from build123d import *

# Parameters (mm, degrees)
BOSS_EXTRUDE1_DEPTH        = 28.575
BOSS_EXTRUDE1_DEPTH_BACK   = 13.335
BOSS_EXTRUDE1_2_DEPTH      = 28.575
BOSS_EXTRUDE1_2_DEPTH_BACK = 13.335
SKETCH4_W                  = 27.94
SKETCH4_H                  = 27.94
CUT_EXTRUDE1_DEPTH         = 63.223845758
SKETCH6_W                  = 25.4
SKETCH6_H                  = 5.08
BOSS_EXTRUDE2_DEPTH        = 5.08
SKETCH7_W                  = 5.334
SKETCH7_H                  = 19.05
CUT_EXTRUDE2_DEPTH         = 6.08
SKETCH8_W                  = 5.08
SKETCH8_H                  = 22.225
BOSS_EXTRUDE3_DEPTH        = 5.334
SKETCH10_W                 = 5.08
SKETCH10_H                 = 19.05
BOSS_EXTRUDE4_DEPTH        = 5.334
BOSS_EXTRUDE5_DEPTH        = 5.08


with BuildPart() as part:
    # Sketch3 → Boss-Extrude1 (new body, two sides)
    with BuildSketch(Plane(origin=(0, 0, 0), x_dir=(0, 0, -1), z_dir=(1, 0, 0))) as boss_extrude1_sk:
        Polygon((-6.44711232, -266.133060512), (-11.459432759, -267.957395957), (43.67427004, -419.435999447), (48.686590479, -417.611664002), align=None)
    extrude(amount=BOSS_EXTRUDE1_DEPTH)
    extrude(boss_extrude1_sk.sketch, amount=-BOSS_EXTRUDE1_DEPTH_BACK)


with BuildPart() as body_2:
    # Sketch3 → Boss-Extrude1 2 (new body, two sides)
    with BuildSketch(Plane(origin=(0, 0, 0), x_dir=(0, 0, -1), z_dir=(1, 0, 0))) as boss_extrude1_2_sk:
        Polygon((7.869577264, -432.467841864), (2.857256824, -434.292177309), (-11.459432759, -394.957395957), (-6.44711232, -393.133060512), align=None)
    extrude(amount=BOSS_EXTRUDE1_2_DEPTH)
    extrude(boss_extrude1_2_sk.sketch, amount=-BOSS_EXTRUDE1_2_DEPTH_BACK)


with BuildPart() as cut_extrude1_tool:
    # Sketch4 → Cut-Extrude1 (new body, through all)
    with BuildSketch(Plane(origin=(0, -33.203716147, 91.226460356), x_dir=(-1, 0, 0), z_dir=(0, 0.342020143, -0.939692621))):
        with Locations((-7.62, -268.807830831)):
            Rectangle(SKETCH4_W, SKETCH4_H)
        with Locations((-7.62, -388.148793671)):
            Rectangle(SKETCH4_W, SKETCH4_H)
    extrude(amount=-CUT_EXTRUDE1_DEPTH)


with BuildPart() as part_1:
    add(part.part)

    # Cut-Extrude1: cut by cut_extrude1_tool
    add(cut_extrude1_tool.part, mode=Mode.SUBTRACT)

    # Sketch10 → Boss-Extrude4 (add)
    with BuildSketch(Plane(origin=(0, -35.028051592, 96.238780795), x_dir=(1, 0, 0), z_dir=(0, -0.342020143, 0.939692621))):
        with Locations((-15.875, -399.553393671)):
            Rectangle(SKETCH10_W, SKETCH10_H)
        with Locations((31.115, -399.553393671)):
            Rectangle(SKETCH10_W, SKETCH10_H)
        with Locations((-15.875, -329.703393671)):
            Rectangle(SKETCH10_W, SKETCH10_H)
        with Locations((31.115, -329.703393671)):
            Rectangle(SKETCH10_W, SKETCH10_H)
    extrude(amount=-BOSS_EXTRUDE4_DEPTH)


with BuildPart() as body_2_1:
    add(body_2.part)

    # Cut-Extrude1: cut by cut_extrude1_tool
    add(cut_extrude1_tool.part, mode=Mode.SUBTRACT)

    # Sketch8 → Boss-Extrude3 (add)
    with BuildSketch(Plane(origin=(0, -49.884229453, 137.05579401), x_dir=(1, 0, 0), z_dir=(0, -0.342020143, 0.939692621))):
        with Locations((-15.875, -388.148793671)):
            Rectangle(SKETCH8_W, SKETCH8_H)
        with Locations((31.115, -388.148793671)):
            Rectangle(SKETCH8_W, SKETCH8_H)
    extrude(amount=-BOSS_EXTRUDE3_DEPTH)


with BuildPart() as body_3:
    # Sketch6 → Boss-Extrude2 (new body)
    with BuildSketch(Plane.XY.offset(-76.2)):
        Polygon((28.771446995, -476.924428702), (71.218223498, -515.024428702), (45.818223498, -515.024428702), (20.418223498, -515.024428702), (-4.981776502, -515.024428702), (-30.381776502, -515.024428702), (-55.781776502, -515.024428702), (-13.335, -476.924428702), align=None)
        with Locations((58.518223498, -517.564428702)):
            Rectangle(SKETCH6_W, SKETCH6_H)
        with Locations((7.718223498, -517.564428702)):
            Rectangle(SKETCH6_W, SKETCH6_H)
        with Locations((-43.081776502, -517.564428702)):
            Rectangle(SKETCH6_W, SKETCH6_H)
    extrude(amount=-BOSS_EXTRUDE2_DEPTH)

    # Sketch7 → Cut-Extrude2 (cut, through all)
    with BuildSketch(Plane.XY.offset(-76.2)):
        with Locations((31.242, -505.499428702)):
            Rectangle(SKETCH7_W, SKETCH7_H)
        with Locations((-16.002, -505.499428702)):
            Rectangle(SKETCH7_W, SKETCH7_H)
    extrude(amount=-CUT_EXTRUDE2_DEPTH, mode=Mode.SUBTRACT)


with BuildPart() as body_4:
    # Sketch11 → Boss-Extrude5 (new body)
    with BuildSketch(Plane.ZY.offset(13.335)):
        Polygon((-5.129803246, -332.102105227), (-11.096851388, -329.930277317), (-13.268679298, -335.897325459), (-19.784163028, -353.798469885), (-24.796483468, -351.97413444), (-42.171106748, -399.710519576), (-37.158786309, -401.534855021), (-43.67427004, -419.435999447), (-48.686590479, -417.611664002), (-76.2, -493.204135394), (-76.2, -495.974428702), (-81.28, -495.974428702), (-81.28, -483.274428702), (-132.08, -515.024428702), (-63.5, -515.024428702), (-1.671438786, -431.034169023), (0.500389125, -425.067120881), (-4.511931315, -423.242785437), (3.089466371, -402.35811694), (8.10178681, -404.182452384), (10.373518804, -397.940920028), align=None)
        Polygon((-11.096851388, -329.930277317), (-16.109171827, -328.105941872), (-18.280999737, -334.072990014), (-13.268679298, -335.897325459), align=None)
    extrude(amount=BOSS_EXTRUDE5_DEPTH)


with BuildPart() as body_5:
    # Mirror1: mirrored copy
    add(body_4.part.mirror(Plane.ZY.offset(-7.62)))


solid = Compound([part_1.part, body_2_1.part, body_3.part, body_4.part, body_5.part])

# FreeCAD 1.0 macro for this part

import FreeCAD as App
import Part
import Sketcher

V = App.Vector
Q = App.Units.Quantity

doc = App.newDocument("Part")
params = doc.addObject("Spreadsheet::Sheet", "Params")
for row, (alias, value) in enumerate([
    ("sketch1_length", "0.21 in"),
    ("pad1_length", "1.125 in"),
    ("pad1_length2", "0.525 in"),
    ("sketch2_length", "0.21 in"),
    ("sketch2_length2", "1.648 in"),
    ("pad2_length", "1.125 in"),
    ("pad2_length2", "0.525 in"),
    ("sketch3_width", "1.1 in"),
    ("pad3_length", "63.223846 mm"),
    ("sketch4_width", "0.2 in"),
    ("sketch4_height", "0.75 in"),
    ("pad4_length", "0.21 in"),
    ("sketch5_width", "0.2 in"),
    ("sketch5_height", "0.875 in"),
    ("pad5_length", "0.21 in"),
    ("sketch6_width", "1 in"),
    ("sketch6_height", "0.2 in"),
    ("pad6_length", "0.2 in"),
    ("sketch7_width", "0.21 in"),
    ("sketch7_height", "0.75 in"),
    ("sketch8_length", "2 in"),
    ("sketch8_width", "0.5 in"),
    ("sketch8_height", "0.2 in"),
    ("sketch8_height2", "2.7 in"),
    ("sketch8_length2", "0.25 in"),
    ("pad7_length", "0.2 in"),
], start=1):
    params.set(f"A{row}", alias)
    params.set(f"B{row}", "=" + value)
    params.setAlias(f"B{row}", alias)

body = doc.addObject("PartDesign::Body", "Body")

# Sketch on YZ plane
sketch1 = body.newObject("Sketcher::SketchObject", "Sketch")
sketch1.AttachmentSupport = (doc.getObject("YZ_Plane"), [""])
sketch1.MapMode = "FlatFace"
sketch1.addGeometry([
    Part.LineSegment(V(-266, 6, 0), V(-268, 11, 0)),
    Part.LineSegment(V(-268, 11, 0), V(-419, -44, 0)),
    Part.LineSegment(V(-419, -44, 0), V(-418, -49, 0)),
    Part.LineSegment(V(-418, -49, 0), V(-266, 6, 0)),
], False)
sketch1.addConstraint([
    Sketcher.Constraint("Coincident", 0, 2, 1, 1),
    Sketcher.Constraint("Coincident", 1, 2, 2, 1),
    Sketcher.Constraint("Coincident", 2, 2, 3, 1),
    Sketcher.Constraint("Coincident", 3, 2, 0, 1),
    Sketcher.Constraint("Perpendicular", 0, 1),
    Sketcher.Constraint("Perpendicular", 1, 2),
    Sketcher.Constraint("Perpendicular", 2, 3),
    Sketcher.Constraint("Angle", 0, Q("110 deg")),
    Sketcher.Constraint("Distance", 0, Q("0.21 in")),
    Sketcher.Constraint("DistanceX", 1, 2, -1, 1, 419.435999),
    Sketcher.Constraint("DistanceY", 1, 2, -1, 1, 43.67427),
    Sketcher.Constraint("DistanceX", 3, 2, -1, 1, 266.133061),
])
sketch1.setExpression("Constraints[8]", "Params.sketch1_length")
pad1 = body.newObject("PartDesign::Pad", "Pad")
pad1.Profile = sketch1
pad1.Type = "TwoLengths"
pad1.setExpression("Length", "Params.pad1_length")
pad1.setExpression("Length2", "Params.pad1_length2")
body2 = doc.addObject("PartDesign::Body", "Body001")

# Sketch on YZ plane
sketch2 = body2.newObject("Sketcher::SketchObject", "Sketch001")
sketch2.AttachmentSupport = (doc.getObject("YZ_Plane001"), [""])
sketch2.MapMode = "FlatFace"
sketch2.addGeometry([
    Part.LineSegment(V(-434, -3, 0), V(-432, -8, 0)),
    Part.LineSegment(V(-432, -8, 0), V(-393, 6, 0)),
    Part.LineSegment(V(-393, 6, 0), V(-395, 11, 0)),
    Part.LineSegment(V(-395, 11, 0), V(-434, -3, 0)),
], False)
sketch2.addConstraint([
    Sketcher.Constraint("Coincident", 0, 2, 1, 1),
    Sketcher.Constraint("Coincident", 1, 2, 2, 1),
    Sketcher.Constraint("Coincident", 2, 2, 3, 1),
    Sketcher.Constraint("Coincident", 3, 2, 0, 1),
    Sketcher.Constraint("Perpendicular", 0, 1),
    Sketcher.Constraint("Perpendicular", 1, 2),
    Sketcher.Constraint("Perpendicular", 2, 3),
    Sketcher.Constraint("Angle", 0, Q("-70 deg")),
    Sketcher.Constraint("Distance", 0, Q("0.21 in")),
    Sketcher.Constraint("Distance", 1, Q("1.648 in")),
    Sketcher.Constraint("DistanceX", 0, 2, -1, 1, 432.467842),
    Sketcher.Constraint("DistanceY", 0, 2, -1, 1, 7.869577),
])
sketch2.setExpression("Constraints[8]", "Params.sketch2_length")
sketch2.setExpression("Constraints[9]", "Params.sketch2_length2")
pad2 = body2.newObject("PartDesign::Pad", "Pad001")
pad2.Profile = sketch2
pad2.Type = "TwoLengths"
pad2.setExpression("Length", "Params.pad2_length")
pad2.setExpression("Length2", "Params.pad2_length2")
body3 = doc.addObject("PartDesign::Body", "Body002")
body3.AllowCompound = True

# Sketch on an angled plane
sketch3 = body3.newObject("Sketcher::SketchObject", "Sketch002")
sketch3.Placement = App.Placement(V(0, -33.203716, 91.22646), App.Rotation(V(-1, 0, 0), V(0, 0.939692621, 0.342020143), V(0, 0.342020143, -0.939692621), "ZXY"))
sketch3.addGeometry([
    Part.LineSegment(V(-22, -255, 0), V(-22, -283, 0)),  # 0
    Part.LineSegment(V(-22, -283, 0), V(6, -283, 0)),  # 1
    Part.LineSegment(V(6, -283, 0), V(6, -255, 0)),  # 2
    Part.LineSegment(V(6, -255, 0), V(-22, -255, 0)),  # 3
    Part.LineSegment(V(-22, -374, 0), V(-22, -402, 0)),  # 4
    Part.LineSegment(V(-22, -402, 0), V(6, -402, 0)),  # 5
    Part.LineSegment(V(6, -402, 0), V(6, -374, 0)),  # 6
    Part.LineSegment(V(6, -374, 0), V(-22, -374, 0)),  # 7
], False)
sketch3.addConstraint([
    Sketcher.Constraint("Coincident", 0, 2, 1, 1),
    Sketcher.Constraint("Coincident", 1, 2, 2, 1),
    Sketcher.Constraint("Coincident", 2, 2, 3, 1),
    Sketcher.Constraint("Coincident", 3, 2, 0, 1),
    Sketcher.Constraint("Coincident", 4, 2, 5, 1),
    Sketcher.Constraint("Coincident", 5, 2, 6, 1),
    Sketcher.Constraint("Coincident", 6, 2, 7, 1),
    Sketcher.Constraint("Coincident", 7, 2, 4, 1),
    Sketcher.Constraint("Vertical", 0),
    Sketcher.Constraint("Horizontal", 1),
    Sketcher.Constraint("Vertical", 2),
    Sketcher.Constraint("Horizontal", 3),
    Sketcher.Constraint("Vertical", 4),
    Sketcher.Constraint("Horizontal", 5),
    Sketcher.Constraint("Vertical", 6),
    Sketcher.Constraint("Horizontal", 7),
    Sketcher.Constraint("Vertical", 3, 2, 4, 2),
    Sketcher.Constraint("Vertical", 2, 2, 5, 2),
    Sketcher.Constraint("Equal", 7, 0),
    Sketcher.Constraint("Equal", 2, 4),
    Sketcher.Constraint("DistanceX", 1, 1, 1, 2, Q("1.1 in")),
    Sketcher.Constraint("DistanceX", 0, 2, -1, 1, Q("0.85 in")),
    Sketcher.Constraint("DistanceY", 0, 2, -1, 1, 282.777831),
    Sketcher.Constraint("DistanceY", 4, 2, -1, 1, 402.118794),
])
sketch3.setExpression("Constraints[20]", "Params.sketch3_width")
pad3 = body3.newObject("PartDesign::Pad", "Pad002")
pad3.Profile = sketch3
pad3.setExpression("Length", "Params.pad3_length")
pad3.Reversed = True
doc.recompute()

body4 = doc.addObject("PartDesign::Body", "Body003")
body4.BaseFeature = body3
boolean = body.newObject("PartDesign::Boolean", "Boolean")
boolean.Type = "Cut"
boolean.addObjects([body4])
doc.recompute()

# Sketch on an angled plane
sketch4 = body.newObject("Sketcher::SketchObject", "Sketch003")
sketch4.Placement = App.Placement(V(0, -35.028052, 96.238781), App.Rotation(V(1, 0, 0), V(0, 0.939692621, 0.342020143), V(0, -0.342020143, 0.939692621), "ZXY"))
sketch4.addGeometry([
    Part.LineSegment(V(-18, -390, 0), V(-18, -409, 0)),  # 0
    Part.LineSegment(V(-18, -409, 0), V(-13, -409, 0)),  # 1
    Part.LineSegment(V(-13, -409, 0), V(-13, -390, 0)),  # 2
    Part.LineSegment(V(-13, -390, 0), V(-18, -390, 0)),  # 3
    Part.LineSegment(V(29, -390, 0), V(29, -409, 0)),  # 4
    Part.LineSegment(V(29, -409, 0), V(34, -409, 0)),  # 5
    Part.LineSegment(V(34, -409, 0), V(34, -390, 0)),  # 6
    Part.LineSegment(V(34, -390, 0), V(29, -390, 0)),  # 7
    Part.LineSegment(V(-18, -320, 0), V(-18, -339, 0)),  # 8
    Part.LineSegment(V(-18, -339, 0), V(-13, -339, 0)),  # 9
    Part.LineSegment(V(-13, -339, 0), V(-13, -320, 0)),  # 10
    Part.LineSegment(V(-13, -320, 0), V(-18, -320, 0)),  # 11
    Part.LineSegment(V(29, -320, 0), V(29, -339, 0)),  # 12
    Part.LineSegment(V(29, -339, 0), V(34, -339, 0)),  # 13
    Part.LineSegment(V(34, -339, 0), V(34, -320, 0)),  # 14
    Part.LineSegment(V(34, -320, 0), V(29, -320, 0)),  # 15
], False)
sketch4.addConstraint([
    Sketcher.Constraint("Coincident", 0, 2, 1, 1),
    Sketcher.Constraint("Coincident", 1, 2, 2, 1),
    Sketcher.Constraint("Coincident", 2, 2, 3, 1),
    Sketcher.Constraint("Coincident", 3, 2, 0, 1),
    Sketcher.Constraint("Coincident", 4, 2, 5, 1),
    Sketcher.Constraint("Coincident", 5, 2, 6, 1),
    Sketcher.Constraint("Coincident", 6, 2, 7, 1),
    Sketcher.Constraint("Coincident", 7, 2, 4, 1),
    Sketcher.Constraint("Coincident", 8, 2, 9, 1),
    Sketcher.Constraint("Coincident", 9, 2, 10, 1),
    Sketcher.Constraint("Coincident", 10, 2, 11, 1),
    Sketcher.Constraint("Coincident", 11, 2, 8, 1),
    Sketcher.Constraint("Coincident", 12, 2, 13, 1),
    Sketcher.Constraint("Coincident", 13, 2, 14, 1),
    Sketcher.Constraint("Coincident", 14, 2, 15, 1),
    Sketcher.Constraint("Coincident", 15, 2, 12, 1),
    Sketcher.Constraint("Vertical", 0),
    Sketcher.Constraint("Horizontal", 1),
    Sketcher.Constraint("Vertical", 2),
    Sketcher.Constraint("Horizontal", 3),
    Sketcher.Constraint("Vertical", 4),
    Sketcher.Constraint("Horizontal", 5),
    Sketcher.Constraint("Vertical", 6),
    Sketcher.Constraint("Horizontal", 7),
    Sketcher.Constraint("Vertical", 8),
    Sketcher.Constraint("Horizontal", 9),
    Sketcher.Constraint("Vertical", 10),
    Sketcher.Constraint("Horizontal", 11),
    Sketcher.Constraint("Vertical", 12),
    Sketcher.Constraint("Horizontal", 13),
    Sketcher.Constraint("Vertical", 14),
    Sketcher.Constraint("Horizontal", 15),
    Sketcher.Constraint("Horizontal", 1, 2, 4, 2),
    Sketcher.Constraint("Horizontal", 3, 2, 6, 2),
    Sketcher.Constraint("Horizontal", 9, 2, 12, 2),
    Sketcher.Constraint("Horizontal", 11, 2, 14, 2),
    Sketcher.Constraint("Vertical", 3, 2, 8, 2),
    Sketcher.Constraint("Vertical", 2, 2, 9, 2),
    Sketcher.Constraint("Vertical", 7, 2, 12, 2),
    Sketcher.Constraint("Vertical", 6, 2, 13, 2),
    Sketcher.Constraint("Equal", 3, 5),
    Sketcher.Constraint("Equal", 6, 8),
    Sketcher.Constraint("DistanceX", 1, 1, 1, 2, Q("0.2 in")),
    Sketcher.Constraint("DistanceY", 3, 2, 8, 2, Q("2 in")),
    Sketcher.Constraint("DistanceY", 0, 2, 0, 1, Q("0.75 in")),
    Sketcher.Constraint("DistanceX", 1, 2, 4, 2, Q("1.65 in")),
    Sketcher.Constraint("DistanceX", 0, 2, -1, 1, Q("0.725 in")),
    Sketcher.Constraint("DistanceY", 0, 2, -1, 1, 409.078394),
])
sketch4.setExpression("Constraints[42]", "Params.sketch4_width")
sketch4.setExpression("Constraints[44]", "Params.sketch4_height")
pad4 = body.newObject("PartDesign::Pad", "Pad003")
pad4.Profile = sketch4
pad4.setExpression("Length", "Params.pad4_length")
pad4.Reversed = True
doc.recompute()

boolean2 = body2.newObject("PartDesign::Boolean", "Boolean001")
boolean2.Type = "Cut"
boolean2.addObjects([body3])

# Sketch on an angled plane
sketch5 = body2.newObject("Sketcher::SketchObject", "Sketch004")
sketch5.Placement = App.Placement(V(0, -49.884229, 137.055794), App.Rotation(V(1, 0, 0), V(0, 0.939692621, 0.342020143), V(0, -0.342020143, 0.939692621), "ZXY"))
sketch5.addGeometry([
    Part.LineSegment(V(-18, -377, 0), V(-18, -399, 0)),  # 0
    Part.LineSegment(V(-18, -399, 0), V(-13, -399, 0)),  # 1
    Part.LineSegment(V(-13, -399, 0), V(-13, -377, 0)),  # 2
    Part.LineSegment(V(-13, -377, 0), V(-18, -377, 0)),  # 3
    Part.LineSegment(V(29, -377, 0), V(29, -399, 0)),  # 4
    Part.LineSegment(V(29, -399, 0), V(34, -399, 0)),  # 5
    Part.LineSegment(V(34, -399, 0), V(34, -377, 0)),  # 6
    Part.LineSegment(V(34, -377, 0), V(29, -377, 0)),  # 7
], False)
sketch5.addConstraint([
    Sketcher.Constraint("Coincident", 0, 2, 1, 1),
    Sketcher.Constraint("Coincident", 1, 2, 2, 1),
    Sketcher.Constraint("Coincident", 2, 2, 3, 1),
    Sketcher.Constraint("Coincident", 3, 2, 0, 1),
    Sketcher.Constraint("Coincident", 4, 2, 5, 1),
    Sketcher.Constraint("Coincident", 5, 2, 6, 1),
    Sketcher.Constraint("Coincident", 6, 2, 7, 1),
    Sketcher.Constraint("Coincident", 7, 2, 4, 1),
    Sketcher.Constraint("Vertical", 0),
    Sketcher.Constraint("Horizontal", 1),
    Sketcher.Constraint("Vertical", 2),
    Sketcher.Constraint("Horizontal", 3),
    Sketcher.Constraint("Vertical", 4),
    Sketcher.Constraint("Horizontal", 5),
    Sketcher.Constraint("Vertical", 6),
    Sketcher.Constraint("Horizontal", 7),
    Sketcher.Constraint("Horizontal", 1, 2, 4, 2),
    Sketcher.Constraint("Horizontal", 3, 2, 6, 2),
    Sketcher.Constraint("Equal", 3, 5),
    Sketcher.Constraint("DistanceX", 1, 1, 1, 2, Q("0.2 in")),
    Sketcher.Constraint("DistanceY", 0, 2, 0, 1, Q("0.875 in")),
    Sketcher.Constraint("DistanceX", 1, 2, 4, 2, Q("1.65 in")),
    Sketcher.Constraint("DistanceX", 0, 2, -1, 1, Q("0.725 in")),
    Sketcher.Constraint("DistanceY", 0, 2, -1, 1, 399.261294),
])
sketch5.setExpression("Constraints[19]", "Params.sketch5_width")
sketch5.setExpression("Constraints[20]", "Params.sketch5_height")
pad5 = body2.newObject("PartDesign::Pad", "Pad004")
pad5.Profile = sketch5
pad5.setExpression("Length", "Params.pad5_length")
pad5.Reversed = True
body5 = doc.addObject("PartDesign::Body", "Body004")

# Sketch on XY plane
sketch6 = body5.newObject("Sketcher::SketchObject", "Sketch005")
sketch6.AttachmentSupport = (doc.getObject("XY_Plane004"), [""])
sketch6.MapMode = "FlatFace"
sketch6.AttachmentOffset = App.Placement(V(0, 0, -3 * 25.4), App.Rotation())
sketch6.addGeometry([
    Part.LineSegment(V(71, -515, 0), V(29, -477, 0)),  # 0
    Part.LineSegment(V(29, -477, 0), V(-13, -477, 0)),  # 1
    Part.LineSegment(V(-13, -477, 0), V(-56, -515, 0)),  # 2
    Part.LineSegment(V(-56, -515, 0), V(-56, -520, 0)),  # 3
    Part.LineSegment(V(-56, -520, 0), V(-30, -520, 0)),  # 4
    Part.LineSegment(V(-30, -520, 0), V(-30, -515, 0)),  # 5
    Part.LineSegment(V(-30, -515, 0), V(-5, -515, 0)),  # 6
    Part.LineSegment(V(-5, -515, 0), V(-5, -520, 0)),  # 7
    Part.LineSegment(V(-5, -520, 0), V(20, -520, 0)),  # 8
    Part.LineSegment(V(20, -520, 0), V(20, -515, 0)),  # 9
    Part.LineSegment(V(20, -515, 0), V(46, -515, 0)),  # 10
    Part.LineSegment(V(46, -515, 0), V(46, -520, 0)),  # 11
    Part.LineSegment(V(46, -520, 0), V(71, -520, 0)),  # 12
    Part.LineSegment(V(71, -520, 0), V(71, -515, 0)),  # 13
], False)
sketch6.addConstraint([
    Sketcher.Constraint("Coincident", 0, 2, 1, 1),
    Sketcher.Constraint("Coincident", 1, 2, 2, 1),
    Sketcher.Constraint("Coincident", 2, 2, 3, 1),
    Sketcher.Constraint("Coincident", 3, 2, 4, 1),
    Sketcher.Constraint("Coincident", 4, 2, 5, 1),
    Sketcher.Constraint("Coincident", 5, 2, 6, 1),
    Sketcher.Constraint("Coincident", 6, 2, 7, 1),
    Sketcher.Constraint("Coincident", 7, 2, 8, 1),
    Sketcher.Constraint("Coincident", 8, 2, 9, 1),
    Sketcher.Constraint("Coincident", 9, 2, 10, 1),
    Sketcher.Constraint("Coincident", 10, 2, 11, 1),
    Sketcher.Constraint("Coincident", 11, 2, 12, 1),
    Sketcher.Constraint("Coincident", 12, 2, 13, 1),
    Sketcher.Constraint("Coincident", 13, 2, 0, 1),
    Sketcher.Constraint("Horizontal", 1),
    Sketcher.Constraint("Vertical", 3),
    Sketcher.Constraint("Horizontal", 4),
    Sketcher.Constraint("Vertical", 5),
    Sketcher.Constraint("Horizontal", 6),
    Sketcher.Constraint("Vertical", 7),
    Sketcher.Constraint("Horizontal", 8),
    Sketcher.Constraint("Vertical", 9),
    Sketcher.Constraint("Horizontal", 10),
    Sketcher.Constraint("Vertical", 11),
    Sketcher.Constraint("Horizontal", 12),
    Sketcher.Constraint("Vertical", 13),
    Sketcher.Constraint("Horizontal", 2, 2, 5, 2),
    Sketcher.Constraint("Horizontal", 4, 2, 7, 2),
    Sketcher.Constraint("Horizontal", 6, 2, 9, 2),
    Sketcher.Constraint("Horizontal", 8, 2, 11, 2),
    Sketcher.Constraint("Horizontal", 10, 2, 13, 2),
    Sketcher.Constraint("Equal", 4, 6),
    Sketcher.Constraint("Equal", 6, 8),
    Sketcher.Constraint("Equal", 8, 10),
    Sketcher.Constraint("Equal", 10, 12),
    Sketcher.Constraint("Equal", 0, 2),
    Sketcher.Constraint("DistanceX", 4, 1, 4, 2, Q("1 in")),
    Sketcher.Constraint("DistanceY", 3, 2, 3, 1, Q("0.2 in")),
    Sketcher.Constraint("DistanceY", 2, 2, 1, 2, Q("1.5 in")),
    Sketcher.Constraint("DistanceX", 1, 2, -1, 1, Q("0.525 in")),
    Sketcher.Constraint("DistanceX", 1, 2, 1, 1, 42.106447),
    Sketcher.Constraint("DistanceY", 0, 2, -1, 1, 476.924429),
])
sketch6.setExpression("Constraints[36]", "Params.sketch6_width")
sketch6.setExpression("Constraints[37]", "Params.sketch6_height")
pad6 = body5.newObject("PartDesign::Pad", "Pad005")
pad6.Profile = sketch6
pad6.setExpression("Length", "Params.pad6_length")
pad6.Reversed = True

# Sketch on XY plane
sketch7 = body5.newObject("Sketcher::SketchObject", "Sketch006")
sketch7.AttachmentSupport = (doc.getObject("XY_Plane004"), [""])
sketch7.MapMode = "FlatFace"
sketch7.AttachmentOffset = App.Placement(V(0, 0, -3 * 25.4), App.Rotation())
sketch7.addGeometry([
    Part.LineSegment(V(29, -496, 0), V(29, -515, 0)),  # 0
    Part.LineSegment(V(29, -515, 0), V(34, -515, 0)),  # 1
    Part.LineSegment(V(34, -515, 0), V(34, -496, 0)),  # 2
    Part.LineSegment(V(34, -496, 0), V(29, -496, 0)),  # 3
    Part.LineSegment(V(-19, -496, 0), V(-19, -515, 0)),  # 4
    Part.LineSegment(V(-19, -515, 0), V(-13, -515, 0)),  # 5
    Part.LineSegment(V(-13, -515, 0), V(-13, -496, 0)),  # 6
    Part.LineSegment(V(-13, -496, 0), V(-19, -496, 0)),  # 7
], False)
sketch7.addConstraint([
    Sketcher.Constraint("Coincident", 0, 2, 1, 1),
    Sketcher.Constraint("Coincident", 1, 2, 2, 1),
    Sketcher.Constraint("Coincident", 2, 2, 3, 1),
    Sketcher.Constraint("Coincident", 3, 2, 0, 1),
    Sketcher.Constraint("Coincident", 4, 2, 5, 1),
    Sketcher.Constraint("Coincident", 5, 2, 6, 1),
    Sketcher.Constraint("Coincident", 6, 2, 7, 1),
    Sketcher.Constraint("Coincident", 7, 2, 4, 1),
    Sketcher.Constraint("Vertical", 0),
    Sketcher.Constraint("Horizontal", 1),
    Sketcher.Constraint("Vertical", 2),
    Sketcher.Constraint("Horizontal", 3),
    Sketcher.Constraint("Vertical", 4),
    Sketcher.Constraint("Horizontal", 5),
    Sketcher.Constraint("Vertical", 6),
    Sketcher.Constraint("Horizontal", 7),
    Sketcher.Constraint("Horizontal", 1, 2, 4, 2),
    Sketcher.Constraint("Horizontal", 3, 2, 6, 2),
    Sketcher.Constraint("Equal", 3, 5),
    Sketcher.Constraint("DistanceX", 1, 1, 1, 2, Q("0.21 in")),
    Sketcher.Constraint("DistanceY", 0, 2, 0, 1, Q("0.75 in")),
    Sketcher.Constraint("DistanceX", 4, 2, 0, 2, Q("1.86 in")),
    Sketcher.Constraint("DistanceX", -1, 1, 0, 2, Q("1.125 in")),
    Sketcher.Constraint("DistanceY", 0, 2, -1, 1, 515.024429),
])
sketch7.setExpression("Constraints[19]", "Params.sketch7_width")
sketch7.setExpression("Constraints[20]", "Params.sketch7_height")
pocket1 = body5.newObject("PartDesign::Pocket", "Pocket")
pocket1.Profile = sketch7
pocket1.Type = "ThroughAll"
body6 = doc.addObject("PartDesign::Body", "Body005")

# Sketch on YZ plane
sketch8 = body6.newObject("Sketcher::SketchObject", "Sketch007")
sketch8.AttachmentSupport = (doc.getObject("YZ_Plane005"), [""])
sketch8.MapMode = "FlatFace"
sketch8.AttachmentOffset = App.Placement(V(0, 0, -0.525 * 25.4), App.Rotation())
sketch8.addGeometry([
    Part.LineSegment(V(-332.1, -5.1, 0), V(-329.9, -11.1, 0)),  # 0
    Part.LineSegment(V(-329.9, -11.1, 0), V(-328.1, -16.1, 0)),  # 1
    Part.LineSegment(V(-328.1, -16.1, 0), V(-334.1, -18.3, 0)),  # 2
    Part.LineSegment(V(-334.1, -18.3, 0), V(-335.9, -13.3, 0)),  # 3
    Part.LineSegment(V(-335.9, -13.3, 0), V(-353.8, -19.8, 0)),  # 4
    Part.LineSegment(V(-353.8, -19.8, 0), V(-352, -24.8, 0)),  # 5
    Part.LineSegment(V(-352, -24.8, 0), V(-399.7, -42.2, 0)),  # 6
    Part.LineSegment(V(-399.7, -42.2, 0), V(-401.5, -37.2, 0)),  # 7
    Part.LineSegment(V(-401.5, -37.2, 0), V(-419.4, -43.7, 0)),  # 8
    Part.LineSegment(V(-419.4, -43.7, 0), V(-417.6, -48.7, 0)),  # 9
    Part.LineSegment(V(-417.6, -48.7, 0), V(-493.2, -76.2, 0)),  # 10
    Part.LineSegment(V(-493.2, -76.2, 0), V(-496, -76.2, 0)),  # 11
    Part.LineSegment(V(-496, -76.2, 0), V(-496, -81.3, 0)),  # 12
    Part.LineSegment(V(-496, -81.3, 0), V(-483.3, -81.3, 0)),  # 13
    Part.LineSegment(V(-483.3, -81.3, 0), V(-515, -132.1, 0)),  # 14
    Part.LineSegment(V(-515, -132.1, 0), V(-515, -63.5, 0)),  # 15
    Part.LineSegment(V(-515, -63.5, 0), V(-431, -1.7, 0)),  # 16
    Part.LineSegment(V(-431, -1.7, 0), V(-425.1, 0.5, 0)),  # 17
    Part.LineSegment(V(-425.1, 0.5, 0), V(-423.2, -4.5, 0)),  # 18
    Part.LineSegment(V(-423.2, -4.5, 0), V(-402.4, 3.1, 0)),  # 19
    Part.LineSegment(V(-402.4, 3.1, 0), V(-404.2, 8.1, 0)),  # 20
    Part.LineSegment(V(-404.2, 8.1, 0), V(-397.9, 10.4, 0)),  # 21
    Part.LineSegment(V(-397.9, 10.4, 0), V(-332.1, -5.1, 0)),  # 22
], False)
sketch8.addConstraint([
    Sketcher.Constraint("Coincident", 0, 2, 1, 1),
    Sketcher.Constraint("Coincident", 1, 2, 2, 1),
    Sketcher.Constraint("Coincident", 2, 2, 3, 1),
    Sketcher.Constraint("Coincident", 3, 2, 4, 1),
    Sketcher.Constraint("Coincident", 4, 2, 5, 1),
    Sketcher.Constraint("Coincident", 5, 2, 6, 1),
    Sketcher.Constraint("Coincident", 6, 2, 7, 1),
    Sketcher.Constraint("Coincident", 7, 2, 8, 1),
    Sketcher.Constraint("Coincident", 8, 2, 9, 1),
    Sketcher.Constraint("Coincident", 9, 2, 10, 1),
    Sketcher.Constraint("Coincident", 10, 2, 11, 1),
    Sketcher.Constraint("Coincident", 11, 2, 12, 1),
    Sketcher.Constraint("Coincident", 12, 2, 13, 1),
    Sketcher.Constraint("Coincident", 13, 2, 14, 1),
    Sketcher.Constraint("Coincident", 14, 2, 15, 1),
    Sketcher.Constraint("Coincident", 15, 2, 16, 1),
    Sketcher.Constraint("Coincident", 16, 2, 17, 1),
    Sketcher.Constraint("Coincident", 17, 2, 18, 1),
    Sketcher.Constraint("Coincident", 18, 2, 19, 1),
    Sketcher.Constraint("Coincident", 19, 2, 20, 1),
    Sketcher.Constraint("Coincident", 20, 2, 21, 1),
    Sketcher.Constraint("Coincident", 21, 2, 22, 1),
    Sketcher.Constraint("Coincident", 22, 2, 0, 1),
    Sketcher.Constraint("Horizontal", 11),
    Sketcher.Constraint("Vertical", 12),
    Sketcher.Constraint("Horizontal", 13),
    Sketcher.Constraint("Vertical", 15),
    Sketcher.Constraint("Parallel", 0, 1),
    Sketcher.Constraint("Perpendicular", 1, 2),
    Sketcher.Constraint("Perpendicular", 2, 3),
    Sketcher.Constraint("Perpendicular", 3, 4),
    Sketcher.Constraint("Perpendicular", 4, 5),
    Sketcher.Constraint("Perpendicular", 5, 6),
    Sketcher.Constraint("Perpendicular", 6, 7),
    Sketcher.Constraint("Perpendicular", 7, 8),
    Sketcher.Constraint("Perpendicular", 8, 9),
    Sketcher.Constraint("Perpendicular", 9, 10),
    Sketcher.Constraint("Parallel", 10, 17),
    Sketcher.Constraint("Perpendicular", 17, 18),
    Sketcher.Constraint("Perpendicular", 18, 19),
    Sketcher.Constraint("Perpendicular", 19, 20),
    Sketcher.Constraint("Perpendicular", 20, 21),
    Sketcher.Constraint("Equal", 0, 2),
    Sketcher.Constraint("Equal", 1, 3),
    Sketcher.Constraint("Equal", 3, 5),
    Sketcher.Constraint("Equal", 5, 7),
    Sketcher.Constraint("Equal", 4, 8),
    Sketcher.Constraint("Equal", 7, 9),
    Sketcher.Constraint("Equal", 2, 17),
    Sketcher.Constraint("Equal", 9, 18),
    Sketcher.Constraint("Equal", 18, 20),
    Sketcher.Constraint("Distance", 6, Q("2 in")),
    Sketcher.Constraint("DistanceX", 13, 1, 13, 2, Q("0.5 in")),
    Sketcher.Constraint("DistanceY", 12, 2, 12, 1, Q("0.2 in")),
    Sketcher.Constraint("DistanceY", 15, 1, 15, 2, Q("2.7 in")),
    Sketcher.Constraint("DistanceY", 10, 2, -1, 1, Q("3 in")),
    Sketcher.Constraint("Angle", 0, Q("-70 deg")),
    Sketcher.Constraint("DistanceY", 14, 2, 12, 2, Q("2 in")),
    Sketcher.Constraint("Distance", 0, Q("0.25 in")),
    Sketcher.Constraint("Distance", 1, Q("0.21 in")),
    Sketcher.Constraint("Distance", 4, Q("0.75 in")),
    Sketcher.Constraint("DistanceX", 14, 2, 12, 2, Q("0.75 in")),
    Sketcher.Constraint("Distance", 19, Q("0.875 in")),
    Sketcher.Constraint("Distance", 21, Q("0.2615 in")),
    Sketcher.Constraint("DistanceY", 2, 2, -1, 1, 18.281),
    Sketcher.Constraint("DistanceX", 8, 2, -1, 1, 419.435999),
    Sketcher.Constraint("DistanceX", 16, 2, 4, 2, 77.235699),
    Sketcher.Constraint("DistanceX", 11, 2, 11, 1, 2.770293),
    Sketcher.Constraint("DistanceY", 16, 2, -1, 1, 1.671439),
])
sketch8.setExpression("Constraints[51]", "Params.sketch8_length")
sketch8.setExpression("Constraints[52]", "Params.sketch8_width")
sketch8.setExpression("Constraints[53]", "Params.sketch8_height")
sketch8.setExpression("Constraints[54]", "Params.sketch8_height2")
sketch8.setExpression("Constraints[58]", "Params.sketch8_length2")
pad7 = body6.newObject("PartDesign::Pad", "Pad006")
pad7.Profile = sketch8
pad7.setExpression("Length", "Params.pad7_length")
pad7.Reversed = True
body7 = doc.addObject("PartDesign::Body", "Body006")
doc.recompute()

mirroring = doc.addObject("Part::Mirroring", "Mirroring")
mirroring.Source = body6
mirroring.Base = V(7.62, 0, 0)
mirroring.Normal = V(-1, 0, 0)
body7.BaseFeature = mirroring
doc.recompute()
mirroring.Visibility = False

doc.recompute()
